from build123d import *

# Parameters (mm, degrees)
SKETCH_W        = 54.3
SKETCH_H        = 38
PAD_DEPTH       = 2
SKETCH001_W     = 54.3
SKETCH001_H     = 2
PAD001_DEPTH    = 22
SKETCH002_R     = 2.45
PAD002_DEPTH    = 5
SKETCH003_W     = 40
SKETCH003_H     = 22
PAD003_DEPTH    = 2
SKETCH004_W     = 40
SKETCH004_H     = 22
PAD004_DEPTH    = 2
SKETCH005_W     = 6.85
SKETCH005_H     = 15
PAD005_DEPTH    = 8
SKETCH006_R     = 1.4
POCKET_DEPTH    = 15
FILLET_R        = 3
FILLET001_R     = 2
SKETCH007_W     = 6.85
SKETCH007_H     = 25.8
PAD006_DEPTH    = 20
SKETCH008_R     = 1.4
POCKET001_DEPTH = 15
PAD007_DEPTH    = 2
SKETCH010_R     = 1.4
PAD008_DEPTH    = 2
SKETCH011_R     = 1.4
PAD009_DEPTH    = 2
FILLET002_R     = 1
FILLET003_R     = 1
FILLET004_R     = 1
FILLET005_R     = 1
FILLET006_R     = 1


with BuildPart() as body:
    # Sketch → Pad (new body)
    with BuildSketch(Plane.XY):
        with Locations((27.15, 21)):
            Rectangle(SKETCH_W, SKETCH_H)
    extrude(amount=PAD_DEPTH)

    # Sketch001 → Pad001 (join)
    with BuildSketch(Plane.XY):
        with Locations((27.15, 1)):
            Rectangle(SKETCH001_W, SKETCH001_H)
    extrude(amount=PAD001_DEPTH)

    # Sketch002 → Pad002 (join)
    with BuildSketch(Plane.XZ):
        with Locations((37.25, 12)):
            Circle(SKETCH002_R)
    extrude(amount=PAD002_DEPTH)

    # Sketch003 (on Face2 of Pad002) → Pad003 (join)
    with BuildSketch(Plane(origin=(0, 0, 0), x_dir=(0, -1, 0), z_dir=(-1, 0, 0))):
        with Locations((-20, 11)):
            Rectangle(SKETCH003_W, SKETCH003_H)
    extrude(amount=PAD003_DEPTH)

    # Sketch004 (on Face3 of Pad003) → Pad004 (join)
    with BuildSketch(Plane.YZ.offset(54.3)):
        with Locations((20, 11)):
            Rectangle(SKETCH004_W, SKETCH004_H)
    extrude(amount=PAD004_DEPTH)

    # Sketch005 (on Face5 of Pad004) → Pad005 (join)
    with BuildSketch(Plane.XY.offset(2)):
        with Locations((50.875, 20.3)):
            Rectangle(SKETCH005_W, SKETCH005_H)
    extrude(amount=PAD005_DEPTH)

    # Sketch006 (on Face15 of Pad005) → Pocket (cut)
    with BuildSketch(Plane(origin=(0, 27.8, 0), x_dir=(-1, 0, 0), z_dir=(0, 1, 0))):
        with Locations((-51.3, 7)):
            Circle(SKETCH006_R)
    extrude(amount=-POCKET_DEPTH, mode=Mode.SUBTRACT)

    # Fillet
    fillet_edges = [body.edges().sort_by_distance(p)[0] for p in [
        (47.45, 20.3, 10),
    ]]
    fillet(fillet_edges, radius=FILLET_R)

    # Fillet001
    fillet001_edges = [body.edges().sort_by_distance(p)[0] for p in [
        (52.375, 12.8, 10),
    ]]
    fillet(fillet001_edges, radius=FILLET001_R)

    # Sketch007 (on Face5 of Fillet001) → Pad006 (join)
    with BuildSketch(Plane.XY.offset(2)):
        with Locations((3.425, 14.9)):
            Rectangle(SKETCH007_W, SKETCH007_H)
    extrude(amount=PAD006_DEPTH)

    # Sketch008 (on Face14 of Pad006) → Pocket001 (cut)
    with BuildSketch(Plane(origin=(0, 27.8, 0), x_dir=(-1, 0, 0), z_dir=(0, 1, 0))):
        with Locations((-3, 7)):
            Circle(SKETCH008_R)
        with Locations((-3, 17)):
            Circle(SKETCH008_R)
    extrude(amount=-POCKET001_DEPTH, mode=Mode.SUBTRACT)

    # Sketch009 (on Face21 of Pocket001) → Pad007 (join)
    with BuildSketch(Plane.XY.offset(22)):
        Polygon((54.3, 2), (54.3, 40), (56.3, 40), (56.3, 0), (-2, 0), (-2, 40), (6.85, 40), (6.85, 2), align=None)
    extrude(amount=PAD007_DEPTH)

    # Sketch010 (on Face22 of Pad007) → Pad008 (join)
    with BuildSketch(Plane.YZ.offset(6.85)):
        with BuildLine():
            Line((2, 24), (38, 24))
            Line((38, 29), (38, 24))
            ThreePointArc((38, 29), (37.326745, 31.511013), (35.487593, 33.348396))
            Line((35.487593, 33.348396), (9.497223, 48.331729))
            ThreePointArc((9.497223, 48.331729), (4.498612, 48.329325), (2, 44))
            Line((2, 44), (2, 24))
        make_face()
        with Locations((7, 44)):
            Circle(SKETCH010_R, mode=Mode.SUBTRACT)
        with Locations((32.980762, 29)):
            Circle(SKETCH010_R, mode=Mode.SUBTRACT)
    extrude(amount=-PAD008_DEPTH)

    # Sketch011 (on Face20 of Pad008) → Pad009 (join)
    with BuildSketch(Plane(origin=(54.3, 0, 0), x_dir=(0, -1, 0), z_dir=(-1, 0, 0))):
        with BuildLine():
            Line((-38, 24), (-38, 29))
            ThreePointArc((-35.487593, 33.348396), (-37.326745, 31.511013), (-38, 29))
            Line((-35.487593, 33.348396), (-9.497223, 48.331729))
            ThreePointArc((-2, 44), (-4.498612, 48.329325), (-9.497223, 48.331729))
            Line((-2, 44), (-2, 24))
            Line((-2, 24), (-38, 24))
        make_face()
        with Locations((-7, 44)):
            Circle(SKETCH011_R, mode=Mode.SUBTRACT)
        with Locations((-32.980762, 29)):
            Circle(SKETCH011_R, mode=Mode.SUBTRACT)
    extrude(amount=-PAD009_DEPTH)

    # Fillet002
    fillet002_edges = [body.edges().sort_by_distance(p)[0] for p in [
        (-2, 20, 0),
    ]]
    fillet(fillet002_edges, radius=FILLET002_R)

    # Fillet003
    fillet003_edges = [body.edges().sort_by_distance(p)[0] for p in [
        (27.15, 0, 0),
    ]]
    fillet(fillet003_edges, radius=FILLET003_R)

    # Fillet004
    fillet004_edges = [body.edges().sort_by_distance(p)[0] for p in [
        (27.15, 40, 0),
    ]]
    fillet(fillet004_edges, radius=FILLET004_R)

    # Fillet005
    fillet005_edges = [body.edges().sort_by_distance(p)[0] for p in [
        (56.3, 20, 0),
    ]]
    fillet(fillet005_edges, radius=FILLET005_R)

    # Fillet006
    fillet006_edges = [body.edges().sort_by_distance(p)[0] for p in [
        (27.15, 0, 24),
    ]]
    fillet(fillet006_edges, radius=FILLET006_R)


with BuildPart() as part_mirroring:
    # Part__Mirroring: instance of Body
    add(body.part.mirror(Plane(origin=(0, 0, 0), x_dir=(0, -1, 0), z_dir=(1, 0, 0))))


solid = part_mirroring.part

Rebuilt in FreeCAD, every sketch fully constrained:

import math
import FreeCAD as App
import Part
import Sketcher

V = App.Vector
Q = App.Units.Quantity


def edges_at(feature, points):
    """Names of the edges that pass closest to the given points."""
    edges = feature.Shape.Edges
    near = lambda p: min(range(len(edges)), key=lambda i: edges[i].distToShape(Part.Vertex(*p))[0])
    return sorted({f"Edge{near(p) + 1}" for p in points})


def add_polygon(sketch, points):
    """Adds a closed chain of lines whose ends are joined by coincident constraints."""
    first, n = sketch.GeometryCount, len(points)
    for a, b in zip(points, points[1:] + points[:1]):
        sketch.addGeometry(Part.LineSegment(App.Vector(*a, 0), App.Vector(*b, 0)), False)
    for i in range(n):
        sketch.addConstraint(Sketcher.Constraint("Coincident", first + i, 2, first + (i + 1) % n, 1))

doc = App.newDocument("Part")
body = doc.addObject("PartDesign::Body", "Body")

# Sketch on XY plane
sketch1 = body.newObject("Sketcher::SketchObject", "Sketch")
sketch1.AttachmentSupport = (doc.getObject("XY_Plane"), [""])
sketch1.MapMode = "FlatFace"
add_polygon(sketch1, [(0, 40), (0, 2), (54, 2), (54, 40)])  # lines 0-3
sketch1.addConstraint([
    Sketcher.Constraint("Vertical", 0),
    Sketcher.Constraint("Horizontal", 1),
    Sketcher.Constraint("Vertical", 2),
    Sketcher.Constraint("Horizontal", 3),
    Sketcher.Constraint("PointOnObject", 0, 2, -2),
    Sketcher.Constraint("DistanceY", 0, 2, 0, 1, Q("38 mm")),
    Sketcher.Constraint("DistanceX", 1, 1, 1, 2, Q("54.3 mm")),
    Sketcher.Constraint("DistanceY", -1, 1, 0, 2, Q("2 mm")),
])
pad1 = body.newObject("PartDesign::Pad", "Pad")
pad1.Profile = sketch1
pad1.Length = 2

# Sketch on XY plane
sketch2 = body.newObject("Sketcher::SketchObject", "Sketch001")
sketch2.AttachmentSupport = (doc.getObject("XY_Plane"), [""])
sketch2.MapMode = "FlatFace"
add_polygon(sketch2, [(0, 2), (0, 0), (54.3, 0), (54.3, 2)])  # lines 0-3
sketch2.addConstraint([
    Sketcher.Constraint("Vertical", 0),
    Sketcher.Constraint("Horizontal", 1),
    Sketcher.Constraint("Vertical", 2),
    Sketcher.Constraint("Horizontal", 3),
    Sketcher.Constraint("Coincident", 0, 2, -1, 1),
    Sketcher.Constraint("DistanceY", 0, 2, 0, 1, Q("2 mm")),
    Sketcher.Constraint("DistanceX", 1, 1, 1, 2, Q("54.3 mm")),
])
pad2 = body.newObject("PartDesign::Pad", "Pad001")
pad2.Profile = sketch2
pad2.Length = 22

# Sketch on XZ plane
sketch3 = body.newObject("Sketcher::SketchObject", "Sketch002")
sketch3.AttachmentSupport = (doc.getObject("XZ_Plane"), [""])
sketch3.MapMode = "FlatFace"
sketch3.addGeometry(Part.Circle(V(37.2, 12, 0), V(0, 0, 1), 2.5), False)
sketch3.addConstraint([
    Sketcher.Constraint("Diameter", 0, Q("4.9 mm")),
    Sketcher.Constraint("DistanceY", -1, 1, 0, 3, Q("12 mm")),
    Sketcher.Constraint("DistanceX", -1, 1, 0, 3, Q("37.25 mm")),
])
pad3 = body.newObject("PartDesign::Pad", "Pad002")
pad3.Profile = sketch3
pad3.Length = 5

# Sketch on YZ plane
sketch4 = body.newObject("Sketcher::SketchObject", "Sketch003")
sketch4.AttachmentSupport = (doc.getObject("YZ_Plane"), [""])
sketch4.MapMode = "FlatFace"
add_polygon(sketch4, [(40, 22), (40, 0), (0, 0), (0, 22)])  # lines 0-3
sketch4.addConstraint([
    Sketcher.Constraint("Vertical", 0),
    Sketcher.Constraint("Horizontal", 1),
    Sketcher.Constraint("Vertical", 2),
    Sketcher.Constraint("Horizontal", 3),
    Sketcher.Constraint("Coincident", 1, 2, -1, 1),
    Sketcher.Constraint("DistanceX", 1, 2, 1, 1, Q("40 mm")),
    Sketcher.Constraint("DistanceY", 0, 2, 0, 1, Q("22 mm")),
])
pad4 = body.newObject("PartDesign::Pad", "Pad003")
pad4.Profile = sketch4
pad4.Length = 2
pad4.Reversed = True

# Sketch on YZ plane
sketch5 = body.newObject("Sketcher::SketchObject", "Sketch004")
sketch5.AttachmentSupport = (doc.getObject("YZ_Plane"), [""])
sketch5.MapMode = "FlatFace"
sketch5.AttachmentOffset = App.Placement(V(0, 0, 54.3), App.Rotation())
add_polygon(sketch5, [(0, 22), (0, 0), (40, 0), (40, 22)])  # lines 0-3
sketch5.addConstraint([
    Sketcher.Constraint("Vertical", 0),
    Sketcher.Constraint("Horizontal", 1),
    Sketcher.Constraint("Vertical", 2),
    Sketcher.Constraint("Horizontal", 3),
    Sketcher.Constraint("Coincident", 0, 2, -1, 1),
    Sketcher.Constraint("DistanceX", 1, 1, 1, 2, Q("40 mm")),
    Sketcher.Constraint("DistanceY", 0, 2, 0, 1, Q("22 mm")),
])
pad5 = body.newObject("PartDesign::Pad", "Pad004")
pad5.Profile = sketch5
pad5.Length = 2

# Sketch on XY plane
sketch6 = body.newObject("Sketcher::SketchObject", "Sketch005")
sketch6.AttachmentSupport = (doc.getObject("XY_Plane"), [""])
sketch6.MapMode = "FlatFace"
sketch6.AttachmentOffset = App.Placement(V(0, 0, 2), App.Rotation())
add_polygon(sketch6, [(47, 28), (47, 13), (54, 13), (54, 28)])  # lines 0-3
sketch6.addConstraint([
    Sketcher.Constraint("Vertical", 0),
    Sketcher.Constraint("Horizontal", 1),
    Sketcher.Constraint("Vertical", 2),
    Sketcher.Constraint("Horizontal", 3),
    Sketcher.Constraint("DistanceY", 0, 2, 0, 1, Q("15 mm")),
    Sketcher.Constraint("DistanceX", 1, 1, 1, 2, Q("6.85 mm")),
    Sketcher.Constraint("DistanceY", -1, 1, 0, 2, Q("12.8 mm")),
    Sketcher.Constraint("DistanceX", -1, 1, 1, 2, Q("54.3 mm")),
])
pad6 = body.newObject("PartDesign::Pad", "Pad005")
pad6.Profile = sketch6
pad6.Length = 8

# Sketch on XZ plane
sketch7 = body.newObject("Sketcher::SketchObject", "Sketch006")
sketch7.AttachmentSupport = (doc.getObject("XZ_Plane"), [""])
sketch7.MapMode = "FlatFace"
sketch7.AttachmentOffset = App.Placement(V(0, 0, -27.8), App.Rotation())
sketch7.addGeometry(Part.Circle(V(51.3, 7, 0), V(0, 0, 1), 1.4), False)
sketch7.addConstraint([
    Sketcher.Constraint("Diameter", 0, Q("2.8 mm")),
    Sketcher.Constraint("DistanceY", -1, 1, 0, 3, Q("7 mm")),
    Sketcher.Constraint("DistanceX", -1, 1, 0, 3, Q("51.3 mm")),
])
pocket1 = body.newObject("PartDesign::Pocket", "Pocket")
pocket1.Profile = sketch7
pocket1.Length = 15
pocket1.Reversed = True
doc.recompute()

fillet = body.newObject("PartDesign::Fillet", "Fillet")
fillet.Base = (pocket1, edges_at(pocket1, [(47.45, 20.3, 10)]))
fillet.Radius = 3
doc.recompute()

fillet2 = body.newObject("PartDesign::Fillet", "Fillet001")
fillet2.Base = (fillet, edges_at(fillet, [(52.375, 12.8, 10)]))
fillet2.Radius = 2

# Sketch on XY plane
sketch8 = body.newObject("Sketcher::SketchObject", "Sketch007")
sketch8.AttachmentSupport = (doc.getObject("XY_Plane"), [""])
sketch8.MapMode = "FlatFace"
sketch8.AttachmentOffset = App.Placement(V(0, 0, 2), App.Rotation())
add_polygon(sketch8, [(0, 28), (0, 2), (7, 2), (7, 28)])  # lines 0-3
sketch8.addConstraint([
    Sketcher.Constraint("Vertical", 0),
    Sketcher.Constraint("Horizontal", 1),
    Sketcher.Constraint("Vertical", 2),
    Sketcher.Constraint("Horizontal", 3),
    Sketcher.Constraint("PointOnObject", 0, 2, -2),
    Sketcher.Constraint("DistanceY", 0, 2, 0, 1, Q("25.8 mm")),
    Sketcher.Constraint("DistanceY", -1, 1, 0, 2, Q("2 mm")),
    Sketcher.Constraint("DistanceX", 1, 1, 1, 2, Q("6.85 mm")),
])
pad7 = body.newObject("PartDesign::Pad", "Pad006")
pad7.Profile = sketch8
pad7.Length = 20

# Sketch on XZ plane
sketch9 = body.newObject("Sketcher::SketchObject", "Sketch008")
sketch9.AttachmentSupport = (doc.getObject("XZ_Plane"), [""])
sketch9.MapMode = "FlatFace"
sketch9.AttachmentOffset = App.Placement(V(0, 0, -27.8), App.Rotation())
sketch9.addGeometry([
    Part.Circle(V(3, 7, 0), V(0, 0, 1), 1.4),
    Part.Circle(V(3, 17, 0), V(0, 0, 1), 1.4),
], False)
sketch9.addConstraint([
    Sketcher.Constraint("Equal", 0, 1),
    Sketcher.Constraint("Vertical", 0, 3, 1, 3),
    Sketcher.Constraint("Diameter", 0, Q("2.8 mm")),
    Sketcher.Constraint("DistanceX", -1, 1, 0, 3, Q("3 mm")),
    Sketcher.Constraint("DistanceY", -1, 1, 0, 3, Q("7 mm")),
    Sketcher.Constraint("DistanceY", -1, 1, 1, 3, Q("17 mm")),
])
pocket2 = body.newObject("PartDesign::Pocket", "Pocket001")
pocket2.Profile = sketch9
pocket2.Length = 15
pocket2.Reversed = True

# Sketch on XY plane
sketch10 = body.newObject("Sketcher::SketchObject", "Sketch009")
sketch10.AttachmentSupport = (doc.getObject("XY_Plane"), [""])
sketch10.MapMode = "FlatFace"
sketch10.AttachmentOffset = App.Placement(V(0, 0, 22), App.Rotation())
add_polygon(sketch10, [(54.3, 40), (54.3, 2), (6.8, 2), (6.8, 40), (-2, 40), (-2, 0), (56.3, 0), (56.3, 40)])  # lines 0-7
sketch10.addConstraint([
    Sketcher.Constraint("Vertical", 0),
    Sketcher.Constraint("Horizontal", 1),
    Sketcher.Constraint("Vertical", 2),
    Sketcher.Constraint("Horizontal", 3),
    Sketcher.Constraint("Vertical", 4),
    Sketcher.Constraint("Horizontal", 5),
    Sketcher.Constraint("Vertical", 6),
    Sketcher.Constraint("Horizontal", 7),
    Sketcher.Constraint("PointOnObject", 4, 2, -1),
    Sketcher.Constraint("Horizontal", 3, 2, 6, 2),
    Sketcher.Constraint("DistanceX", 7, 2, 7, 1, Q("2 mm")),
    Sketcher.Constraint("DistanceY", 0, 2, 0, 1, Q("38 mm")),
    Sketcher.Constraint("DistanceY", 4, 2, 4, 1, Q("40 mm")),
    Sketcher.Constraint("DistanceX", 5, 1, 5, 2, Q("58.3 mm")),
    Sketcher.Constraint("DistanceX", 3, 2, -1, 1, Q("2 mm")),
    Sketcher.Constraint("DistanceX", 1, 2, 1, 1, Q("47.45 mm")),
])
pad8 = body.newObject("PartDesign::Pad", "Pad007")
pad8.Profile = sketch10
pad8.Length = 2

# Sketch on YZ plane
sketch11 = body.newObject("Sketcher::SketchObject", "Sketch010")
sketch11.AttachmentSupport = (doc.getObject("YZ_Plane"), [""])
sketch11.MapMode = "FlatFace"
sketch11.AttachmentOffset = App.Placement(V(0, 0, 6.85), App.Rotation())
sketch11.addGeometry([
    Part.LineSegment(V(2, 24, 0), V(38, 24, 0)),  # 0
    Part.LineSegment(V(38, 24, 0), V(38, 29, 0)),  # 1
    Part.ArcOfCircle(Part.Circle(V(33, 29, 0), V(0, 0, 1), 5), math.radians(0), math.radians(60)),  # 2
    Part.LineSegment(V(35.5, 33.3, 0), V(9.5, 48.3, 0)),  # 3
    Part.ArcOfCircle(Part.Circle(V(7, 44, 0), V(0, 0, 1), 5), math.radians(60), math.radians(180)),  # 4
    Part.LineSegment(V(2, 44, 0), V(2, 24, 0)),  # 5
    Part.Circle(V(33, 29, 0), V(0, 0, 1), 1.4),  # 6
    Part.Circle(V(7, 44, 0), V(0, 0, 1), 1.4),  # 7
], False)
sketch11.addConstraint([
    Sketcher.Constraint("Coincident", 0, 2, 1, 1),
    Sketcher.Constraint("Tangent", 1, 2, 2, 1),
    Sketcher.Constraint("Tangent", 2, 2, 3, 1),
    Sketcher.Constraint("Tangent", 3, 2, 4, 1),
    Sketcher.Constraint("Tangent", 4, 2, 5, 1),
    Sketcher.Constraint("Coincident", 5, 2, 0, 1),
    Sketcher.Constraint("Horizontal", 0),
    Sketcher.Constraint("Vertical", 1),
    Sketcher.Constraint("Vertical", 5),
    Sketcher.Constraint("Coincident", 6, 3, 2, 3),
    Sketcher.Constraint("Coincident", 7, 3, 4, 3),
    Sketcher.Constraint("Equal", 6, 7),
    Sketcher.Constraint("Radius", 4, Q("5 mm")),
    Sketcher.Constraint("Diameter", 6, Q("2.8 mm")),
    Sketcher.Constraint("DistanceX", 0, 1, 0, 2, Q("36 mm")),
    Sketcher.Constraint("DistanceY", 1, 1, 1, 2, Q("5 mm")),
    Sketcher.Constraint("DistanceY", 5, 2, 5, 1, Q("20 mm")),
    Sketcher.Constraint("DistanceY", -1, 1, 2, 3, Q("29.000002 mm")),
    Sketcher.Constraint("DistanceX", -1, 1, 4, 3, Q("7 mm")),
    Sketcher.Constraint("Radius", 2, Q("5.019235 mm")),
])
pad9 = body.newObject("PartDesign::Pad", "Pad008")
pad9.Profile = sketch11
pad9.Length = 2
pad9.Reversed = True

# Sketch on YZ plane
sketch12 = body.newObject("Sketcher::SketchObject", "Sketch011")
sketch12.AttachmentSupport = (doc.getObject("YZ_Plane"), [""])
sketch12.MapMode = "FlatFace"
sketch12.AttachmentOffset = App.Placement(V(0, 0, 54.3), App.Rotation())
sketch12.addGeometry([
    Part.LineSegment(V(38, 29, 0), V(38, 24, 0)),  # 0
    Part.LineSegment(V(38, 24, 0), V(2, 24, 0)),  # 1
    Part.LineSegment(V(2, 24, 0), V(2, 44, 0)),  # 2
    Part.ArcOfCircle(Part.Circle(V(7, 44, 0), V(0, 0, 1), 5), math.radians(60), math.radians(180)),  # 3
    Part.LineSegment(V(9.5, 48.3, 0), V(35.5, 33.3, 0)),  # 4
    Part.ArcOfCircle(Part.Circle(V(33, 29, 0), V(0, 0, 1), 5), math.radians(0), math.radians(60)),  # 5
    Part.Circle(V(33, 29, 0), V(0, 0, 1), 1.4),  # 6
    Part.Circle(V(7, 44, 0), V(0, 0, 1), 1.4),  # 7
], False)
sketch12.addConstraint([
    Sketcher.Constraint("Coincident", 0, 2, 1, 1),
    Sketcher.Constraint("Coincident", 1, 2, 2, 1),
    Sketcher.Constraint("Tangent", 2, 2, 3, 2),
    Sketcher.Constraint("Tangent", 3, 1, 4, 1),
    Sketcher.Constraint("Tangent", 4, 2, 5, 2),
    Sketcher.Constraint("Tangent", 5, 1, 0, 1),
    Sketcher.Constraint("Vertical", 0),
    Sketcher.Constraint("Horizontal", 1),
    Sketcher.Constraint("Vertical", 2),
    Sketcher.Constraint("Coincident", 6, 3, 5, 3),
    Sketcher.Constraint("Coincident", 7, 3, 3, 3),
    Sketcher.Constraint("Equal", 6, 7),
    Sketcher.Constraint("Radius", 3, Q("5 mm")),
    Sketcher.Constraint("Diameter", 6, Q("2.8 mm")),
    Sketcher.Constraint("DistanceX", 1, 2, 1, 1, Q("36 mm")),
    Sketcher.Constraint("DistanceY", 0, 2, 0, 1, Q("5 mm")),
    Sketcher.Constraint("DistanceY", 2, 1, 2, 2, Q("20 mm")),
    Sketcher.Constraint("DistanceX", -1, 1, 3, 3, Q("7 mm")),
    Sketcher.Constraint("DistanceY", -1, 1, 3, 3, Q("44 mm")),
    Sketcher.Constraint("Radius", 5, Q("5.019235 mm")),
])
pad10 = body.newObject("PartDesign::Pad", "Pad009")
pad10.Profile = sketch12
pad10.Length = 2
doc.recompute()

fillet3 = body.newObject("PartDesign::Fillet", "Fillet002")
fillet3.Base = (pad10, edges_at(pad10, [(-2, 20, 0)]))
fillet3.Radius = 1
doc.recompute()

fillet4 = body.newObject("PartDesign::Fillet", "Fillet003")
fillet4.Base = (fillet3, edges_at(fillet3, [(27.65, 0, 0)]))
fillet4.Radius = 1
doc.recompute()

fillet5 = body.newObject("PartDesign::Fillet", "Fillet004")
fillet5.Base = (fillet4, edges_at(fillet4, [(27.65, 40, 0)]))
fillet5.Radius = 1
doc.recompute()

fillet6 = body.newObject("PartDesign::Fillet", "Fillet005")
fillet6.Base = (fillet5, edges_at(fillet5, [(56.3, 20, 0)]))
fillet6.Radius = 1
doc.recompute()

fillet7 = body.newObject("PartDesign::Fillet", "Fillet006")
fillet7.Base = (fillet6, edges_at(fillet6, [(27.15, 0, 24)]))
fillet7.Radius = 1
body2 = doc.addObject("PartDesign::Body", "Body001")
doc.recompute()

mirroring = doc.addObject("Part::Mirroring", "Mirroring")
mirroring.Source = body
mirroring.Base = V(0, 0, 0)
mirroring.Normal = V(1, 0, 0)
body2.BaseFeature = mirroring
doc.recompute()
body.Visibility = False
mirroring.Visibility = False

doc.recompute()
